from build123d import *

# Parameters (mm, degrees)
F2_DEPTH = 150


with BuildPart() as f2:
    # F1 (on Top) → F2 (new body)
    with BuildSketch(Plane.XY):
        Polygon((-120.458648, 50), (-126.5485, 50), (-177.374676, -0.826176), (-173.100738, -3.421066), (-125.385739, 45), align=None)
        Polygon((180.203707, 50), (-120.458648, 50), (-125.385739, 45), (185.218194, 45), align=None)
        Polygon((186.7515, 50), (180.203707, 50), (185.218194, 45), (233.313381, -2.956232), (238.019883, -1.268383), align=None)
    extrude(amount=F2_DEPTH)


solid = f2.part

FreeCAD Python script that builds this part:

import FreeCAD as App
import Part
import Sketcher

V = App.Vector
Q = App.Units.Quantity


def add_polygon(sketch, points):
    """Adds a closed chain of lines whose ends are joined by coincident constraints."""
    first, n = sketch.GeometryCount, len(points)
    for a, b in zip(points, points[1:] + points[:1]):
        sketch.addGeometry(Part.LineSegment(App.Vector(*a, 0), App.Vector(*b, 0)), False)
    for i in range(n):
        sketch.addConstraint(Sketcher.Constraint("Coincident", first + i, 2, first + (i + 1) % n, 1))

doc = App.newDocument("Part")
body = doc.addObject("PartDesign::Body", "Body")

sketch1 = body.newObject("Sketcher::SketchObject", "Sketch")
sketch1.AttachmentSupport = (doc.getObject("XY_Plane"), [""])
sketch1.MapMode = "FlatFace"
add_polygon(sketch1, [(-126.5, 50), (-177.4, -0.8), (-173.1, -3.4), (-125.4, 45), (185.2, 45), (233.3, -3), (238, -1.3), (186.8, 50)])
sketch1.addConstraint(Sketcher.Constraint("Horizontal", 3))
sketch1.addConstraint(Sketcher.Constraint("Horizontal", 7))
sketch1.addConstraint(Sketcher.Constraint("Perpendicular", 0, 6))
sketch1.addConstraint(Sketcher.Constraint("Equal", 1, 5))
sketch1.addConstraint(Sketcher.Constraint("Angle", 0, Q("-135 deg")))
sketch1.addConstraint(Sketcher.Constraint("Distance", 1, 5.0))
sketch1.addConstraint(Sketcher.Constraint("DistanceX", 7, 2, 7, 1, 313.3))
sketch1.addConstraint(Sketcher.Constraint("DistanceY", -1, 1, 2, 2, 45.0))
sketch1.addConstraint(Sketcher.Constraint("DistanceY", -1, 1, 6, 2, 50.0))
sketch1.addConstraint(Sketcher.Constraint("DistanceX", 1, 2, 2, 2, 47.714999))
sketch1.addConstraint(Sketcher.Constraint("DistanceX", -1, 1, 6, 2, 186.7515))
sketch1.addConstraint(Sketcher.Constraint("Distance", 4, 67.918681))
sketch1.addConstraint(Sketcher.Constraint("DistanceX", 3, 1, 3, 2, 310.603933))
sketch1.addConstraint(Sketcher.Constraint("DistanceX", 1, 2, -1, 1, 173.100738))
sketch1.addConstraint(Sketcher.Constraint("DistanceX", -1, 1, 4, 2, 233.313381))
sketch1.addConstraint(Sketcher.Constraint("DistanceY", 1, 2, 0, 2, 2.59489))
pad1 = body.newObject("PartDesign::Pad", "Pad")
pad1.Profile = sketch1
pad1.Length = 150

doc.recompute()
